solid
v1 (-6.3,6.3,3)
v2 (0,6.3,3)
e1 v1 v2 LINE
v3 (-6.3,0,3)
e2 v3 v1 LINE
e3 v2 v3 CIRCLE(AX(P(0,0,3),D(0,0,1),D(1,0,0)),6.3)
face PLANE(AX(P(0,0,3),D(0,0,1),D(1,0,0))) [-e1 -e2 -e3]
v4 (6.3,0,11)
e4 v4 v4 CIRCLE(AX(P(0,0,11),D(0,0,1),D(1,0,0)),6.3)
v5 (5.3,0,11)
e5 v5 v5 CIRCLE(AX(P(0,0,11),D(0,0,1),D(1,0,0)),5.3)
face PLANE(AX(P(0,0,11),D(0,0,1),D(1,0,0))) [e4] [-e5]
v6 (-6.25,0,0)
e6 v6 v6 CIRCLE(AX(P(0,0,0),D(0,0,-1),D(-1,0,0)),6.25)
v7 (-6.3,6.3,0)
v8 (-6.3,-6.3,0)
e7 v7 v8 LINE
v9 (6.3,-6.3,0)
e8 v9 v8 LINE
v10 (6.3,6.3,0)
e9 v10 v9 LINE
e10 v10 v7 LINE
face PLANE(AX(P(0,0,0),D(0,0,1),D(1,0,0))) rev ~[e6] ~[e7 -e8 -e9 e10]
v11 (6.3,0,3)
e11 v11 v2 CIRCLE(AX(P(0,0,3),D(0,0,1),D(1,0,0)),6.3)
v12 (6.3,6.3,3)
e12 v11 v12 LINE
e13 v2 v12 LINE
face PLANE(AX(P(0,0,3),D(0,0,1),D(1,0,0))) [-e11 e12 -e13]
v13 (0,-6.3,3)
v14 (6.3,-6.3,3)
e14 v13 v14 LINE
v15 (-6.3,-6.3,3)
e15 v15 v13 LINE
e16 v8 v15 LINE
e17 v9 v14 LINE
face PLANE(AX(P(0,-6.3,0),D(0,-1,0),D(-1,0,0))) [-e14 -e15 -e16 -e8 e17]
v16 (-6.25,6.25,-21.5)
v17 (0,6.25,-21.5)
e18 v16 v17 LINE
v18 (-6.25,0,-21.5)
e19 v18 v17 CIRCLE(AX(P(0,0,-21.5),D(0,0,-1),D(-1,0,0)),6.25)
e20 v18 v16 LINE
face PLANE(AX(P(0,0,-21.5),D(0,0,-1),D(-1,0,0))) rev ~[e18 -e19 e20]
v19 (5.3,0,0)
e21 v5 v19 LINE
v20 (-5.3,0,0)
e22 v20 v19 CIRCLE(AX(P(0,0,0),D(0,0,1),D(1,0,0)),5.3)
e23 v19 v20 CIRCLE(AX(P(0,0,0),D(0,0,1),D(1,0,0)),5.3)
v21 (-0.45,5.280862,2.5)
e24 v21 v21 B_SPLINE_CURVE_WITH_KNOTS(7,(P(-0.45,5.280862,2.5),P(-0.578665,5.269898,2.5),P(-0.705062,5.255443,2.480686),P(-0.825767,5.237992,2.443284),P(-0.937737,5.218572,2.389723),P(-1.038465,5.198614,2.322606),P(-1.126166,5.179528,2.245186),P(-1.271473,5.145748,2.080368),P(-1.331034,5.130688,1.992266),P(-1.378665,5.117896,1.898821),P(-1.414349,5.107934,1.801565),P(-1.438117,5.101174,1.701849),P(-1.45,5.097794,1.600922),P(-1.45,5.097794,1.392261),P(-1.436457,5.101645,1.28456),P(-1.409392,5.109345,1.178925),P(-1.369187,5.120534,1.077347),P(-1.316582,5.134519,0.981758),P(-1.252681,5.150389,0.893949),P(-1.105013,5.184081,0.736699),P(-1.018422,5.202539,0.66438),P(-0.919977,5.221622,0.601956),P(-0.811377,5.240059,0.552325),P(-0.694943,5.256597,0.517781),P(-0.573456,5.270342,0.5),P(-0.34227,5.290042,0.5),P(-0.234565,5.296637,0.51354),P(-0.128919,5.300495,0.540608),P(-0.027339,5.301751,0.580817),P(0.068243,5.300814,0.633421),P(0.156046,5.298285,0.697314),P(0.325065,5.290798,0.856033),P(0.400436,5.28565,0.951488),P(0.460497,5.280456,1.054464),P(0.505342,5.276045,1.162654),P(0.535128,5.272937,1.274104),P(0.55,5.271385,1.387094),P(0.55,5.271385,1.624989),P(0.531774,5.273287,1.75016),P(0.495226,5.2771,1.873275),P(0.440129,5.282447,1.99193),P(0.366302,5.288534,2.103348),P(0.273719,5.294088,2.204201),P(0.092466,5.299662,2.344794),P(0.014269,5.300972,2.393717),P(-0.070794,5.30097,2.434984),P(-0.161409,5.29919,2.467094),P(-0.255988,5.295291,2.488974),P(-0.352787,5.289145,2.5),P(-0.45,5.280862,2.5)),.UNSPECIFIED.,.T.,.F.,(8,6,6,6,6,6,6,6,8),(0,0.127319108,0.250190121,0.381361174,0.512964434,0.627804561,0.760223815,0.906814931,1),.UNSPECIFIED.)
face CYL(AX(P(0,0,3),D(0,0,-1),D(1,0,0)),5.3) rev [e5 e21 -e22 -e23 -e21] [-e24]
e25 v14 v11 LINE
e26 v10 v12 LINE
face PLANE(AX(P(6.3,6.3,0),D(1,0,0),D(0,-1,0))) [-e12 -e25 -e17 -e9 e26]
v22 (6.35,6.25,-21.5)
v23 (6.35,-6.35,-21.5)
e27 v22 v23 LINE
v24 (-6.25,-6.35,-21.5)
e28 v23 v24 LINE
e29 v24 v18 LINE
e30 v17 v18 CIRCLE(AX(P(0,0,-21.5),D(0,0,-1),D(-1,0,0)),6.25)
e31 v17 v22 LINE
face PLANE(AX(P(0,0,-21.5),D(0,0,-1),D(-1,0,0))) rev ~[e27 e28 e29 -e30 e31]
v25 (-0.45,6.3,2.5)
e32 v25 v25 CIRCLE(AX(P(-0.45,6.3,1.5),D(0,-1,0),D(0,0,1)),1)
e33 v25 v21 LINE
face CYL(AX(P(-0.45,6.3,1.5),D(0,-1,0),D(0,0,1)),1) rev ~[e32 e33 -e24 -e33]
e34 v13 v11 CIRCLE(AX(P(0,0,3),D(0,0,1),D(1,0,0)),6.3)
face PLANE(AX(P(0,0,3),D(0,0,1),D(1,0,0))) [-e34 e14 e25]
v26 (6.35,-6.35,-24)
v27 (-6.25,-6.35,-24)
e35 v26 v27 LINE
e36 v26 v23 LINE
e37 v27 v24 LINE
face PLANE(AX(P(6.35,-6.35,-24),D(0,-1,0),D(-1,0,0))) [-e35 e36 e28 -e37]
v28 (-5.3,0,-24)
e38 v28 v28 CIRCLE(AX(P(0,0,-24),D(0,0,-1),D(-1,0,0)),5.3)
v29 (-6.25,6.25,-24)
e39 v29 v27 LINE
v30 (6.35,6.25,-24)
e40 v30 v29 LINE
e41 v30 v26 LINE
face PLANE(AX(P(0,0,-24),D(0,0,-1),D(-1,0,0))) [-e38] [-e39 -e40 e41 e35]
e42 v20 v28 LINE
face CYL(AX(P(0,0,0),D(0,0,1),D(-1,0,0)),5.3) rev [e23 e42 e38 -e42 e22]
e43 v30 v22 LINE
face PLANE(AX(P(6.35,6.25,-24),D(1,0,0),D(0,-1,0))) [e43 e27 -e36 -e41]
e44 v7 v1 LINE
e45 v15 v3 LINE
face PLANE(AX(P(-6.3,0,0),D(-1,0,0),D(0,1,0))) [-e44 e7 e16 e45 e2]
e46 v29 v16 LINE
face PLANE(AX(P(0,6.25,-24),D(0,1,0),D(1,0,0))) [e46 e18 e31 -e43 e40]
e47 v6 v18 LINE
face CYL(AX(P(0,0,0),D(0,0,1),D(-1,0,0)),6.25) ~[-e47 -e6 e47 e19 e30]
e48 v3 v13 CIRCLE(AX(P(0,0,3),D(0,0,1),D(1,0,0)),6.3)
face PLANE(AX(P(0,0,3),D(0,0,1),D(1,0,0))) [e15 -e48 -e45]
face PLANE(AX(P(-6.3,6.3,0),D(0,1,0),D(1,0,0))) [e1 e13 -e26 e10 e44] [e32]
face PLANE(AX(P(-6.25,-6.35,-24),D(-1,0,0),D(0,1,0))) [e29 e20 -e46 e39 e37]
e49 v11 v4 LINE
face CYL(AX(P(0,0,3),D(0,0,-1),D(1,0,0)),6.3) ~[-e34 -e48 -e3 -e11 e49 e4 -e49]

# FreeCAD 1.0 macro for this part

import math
import FreeCAD as App
import Part
import Sketcher

V = App.Vector


def add_polygon(sketch, points):
    """Adds a closed chain of lines whose ends are joined by coincident constraints."""
    first, n = sketch.GeometryCount, len(points)
    for a, b in zip(points, points[1:] + points[:1]):
        sketch.addGeometry(Part.LineSegment(App.Vector(*a, 0), App.Vector(*b, 0)), False)
    for i in range(n):
        sketch.addConstraint(Sketcher.Constraint("Coincident", first + i, 2, first + (i + 1) % n, 1))

doc = App.newDocument("Part")
params = doc.addObject("Spreadsheet::Sheet", "Params")
for row, (alias, value) in enumerate([
    ("sketch1_diameter", "10.6 mm"),
    ("sketch1_width", "12.6 mm"),
    ("pad1_length", "3 mm"),
    ("sketch2_diameter", "12.6 mm"),
    ("sketch2_diameter2", "10.6 mm"),
    ("pad2_length", "8 mm"),
    ("sketch3_diameter", "12.5 mm"),
    ("sketch3_diameter2", "10.6 mm"),
    ("pad3_length", "24 mm"),
    ("sketch4_diameter", "2 mm"),
    ("hole_diameter", "2 mm"),
    ("hole_depth", "8 mm"),
    ("sketch5_radius", "6.25 mm"),
    ("sketch5_width", "12.6 mm"),
    ("pad4_length", "2.5 mm"),
], start=1):
    params.set(f"A{row}", alias)
    params.set(f"B{row}", "=" + value)
    params.setAlias(f"B{row}", alias)

body = doc.addObject("PartDesign::Body", "Body")

# Sketch on XY plane
sketch1 = body.newObject("Sketcher::SketchObject", "Sketch")
sketch1.AttachmentSupport = (doc.getObject("XY_Plane"), [""])
sketch1.MapMode = "FlatFace"
add_polygon(sketch1, [(-6.3, 6.3), (-6.3, -6.3), (6.3, -6.3), (6.3, 6.3)])  # lines 0-3
sketch1.addGeometry(Part.Circle(V(0, 0, 0), V(0, 0, 1), 5.3), False)  # 4
sketch1.addConstraint([
    Sketcher.Constraint("Vertical", 0),
    Sketcher.Constraint("Horizontal", 1),
    Sketcher.Constraint("Vertical", 2),
    Sketcher.Constraint("Horizontal", 3),
    Sketcher.Constraint("Coincident", 4, 3, -1, 1),
    Sketcher.Constraint("Symmetric", 0, 2, 2, 2, -1, 1),
    Sketcher.Constraint("Equal", 3, 0),
    Sketcher.Constraint("Diameter", 4, 10.6),
    Sketcher.Constraint("DistanceX", 1, 1, 1, 2, 12.6),
])
sketch1.setExpression("Constraints[11]", "Params.sketch1_diameter")
sketch1.setExpression("Constraints[12]", "Params.sketch1_width")
pad1 = body.newObject("PartDesign::Pad", "Pad")
pad1.Profile = sketch1
pad1.setExpression("Length", "Params.pad1_length")

# Sketch on XY plane
sketch2 = body.newObject("Sketcher::SketchObject", "Sketch001")
sketch2.AttachmentSupport = (doc.getObject("XY_Plane"), [""])
sketch2.MapMode = "FlatFace"
sketch2.AttachmentOffset = App.Placement(V(0, 0, 3), App.Rotation())
sketch2.addGeometry([
    Part.Circle(V(0, 0, 0), V(0, 0, 1), 6.3),
    Part.Circle(V(0, 0, 0), V(0, 0, 1), 5.3),
], False)
sketch2.addConstraint([
    Sketcher.Constraint("Coincident", 0, 3, -1, 1),
    Sketcher.Constraint("Coincident", 1, 3, -1, 1),
    Sketcher.Constraint("Diameter", 0, 12.6),
    Sketcher.Constraint("Diameter", 1, 10.6),
])
sketch2.setExpression("Constraints[2]", "Params.sketch2_diameter")
sketch2.setExpression("Constraints[3]", "Params.sketch2_diameter2")
pad2 = body.newObject("PartDesign::Pad", "Pad001")
pad2.Profile = sketch2
pad2.setExpression("Length", "Params.pad2_length")

# Sketch on XY plane
sketch3 = body.newObject("Sketcher::SketchObject", "Sketch002")
sketch3.AttachmentSupport = (doc.getObject("XY_Plane"), [""])
sketch3.MapMode = "FlatFace"
sketch3.addGeometry([
    Part.Circle(V(0, 0, 0), V(0, 0, 1), 6.25),
    Part.Circle(V(0, 0, 0), V(0, 0, 1), 5.3),
], False)
sketch3.addConstraint([
    Sketcher.Constraint("Coincident", 0, 3, -1, 1),
    Sketcher.Constraint("Coincident", 1, 3, -1, 1),
    Sketcher.Constraint("Diameter", 0, 12.5),
    Sketcher.Constraint("Diameter", 1, 10.6),
])
sketch3.setExpression("Constraints[2]", "Params.sketch3_diameter")
sketch3.setExpression("Constraints[3]", "Params.sketch3_diameter2")
pad3 = body.newObject("PartDesign::Pad", "Pad002")
pad3.Profile = sketch3
pad3.setExpression("Length", "Params.pad3_length")
pad3.Reversed = True

# Sketch on XZ plane
sketch4 = body.newObject("Sketcher::SketchObject", "Sketch003")
sketch4.AttachmentSupport = (doc.getObject("XZ_Plane"), [""])
sketch4.MapMode = "FlatFace"
sketch4.AttachmentOffset = App.Placement(V(0, 0, -6.3), App.Rotation())
sketch4.addGeometry(Part.Circle(V(-0.45, 1.5, 0), V(0, 0, 1), 1), False)
sketch4.addConstraint([
    Sketcher.Constraint("Diameter", 0, 2.0),
    Sketcher.Constraint("DistanceY", -1, 1, 0, 3, 1.5),
    Sketcher.Constraint("DistanceX", 0, 3, -1, 1, 0.45),
])
sketch4.setExpression("Constraints[0]", "Params.sketch4_diameter")
doc.recompute()
hole = body.newObject("PartDesign::Hole", "Hole")
hole.Profile = sketch4
hole.ThreadType = "None"
hole.setExpression("Diameter", "Params.hole_diameter")
hole.DepthType = "Dimension"
hole.setExpression("Depth", "Params.hole_depth")
hole.DrillPoint = "Angled"
hole.DrillPointAngle = 118
hole.Reversed = True

# Sketch on XY plane
sketch5 = body.newObject("Sketcher::SketchObject", "Sketch004")
sketch5.AttachmentSupport = (doc.getObject("XY_Plane"), [""])
sketch5.MapMode = "FlatFace"
sketch5.AttachmentOffset = App.Placement(V(0, 0, -24), App.Rotation())
sketch5.addGeometry([
    Part.LineSegment(V(-6.25, -6.35, 0), V(-6.25, 0, 0)),  # 0
    Part.ArcOfCircle(Part.Circle(V(0, 0, 0), V(0, 0, 1), 6.25), math.radians(180), math.radians(450)),  # 1
    Part.LineSegment(V(0, 6.25, 0), V(6.35, 6.25, 0)),  # 2
    Part.LineSegment(V(6.35, 6.25, 0), V(6.35, -6.35, 0)),  # 3
    Part.LineSegment(V(6.35, -6.35, 0), V(-6.25, -6.35, 0)),  # 4
    Part.ArcOfCircle(Part.Circle(V(0, 0, 0), V(0, 0, 1), 6.25), math.radians(90), math.radians(180)),  # 5
    Part.LineSegment(V(-6.25, 0, 0), V(-6.25, 6.25, 0)),  # 6
    Part.LineSegment(V(-6.25, 6.25, 0), V(0, 6.25, 0)),  # 7
], False)
sketch5.addConstraint([
    Sketcher.Constraint("Tangent", 0, 2, 1, 1),
    Sketcher.Constraint("Tangent", 1, 2, 2, 1),
    Sketcher.Constraint("Coincident", 2, 2, 3, 1),
    Sketcher.Constraint("Coincident", 3, 2, 4, 1),
    Sketcher.Constraint("Coincident", 4, 2, 0, 1),
    Sketcher.Constraint("Tangent", 5, 2, 6, 1),
    Sketcher.Constraint("Coincident", 6, 2, 7, 1),
    Sketcher.Constraint("Tangent", 7, 2, 5, 1),
    Sketcher.Constraint("Vertical", 0),
    Sketcher.Constraint("Horizontal", 2),
    Sketcher.Constraint("Vertical", 3),
    Sketcher.Constraint("Horizontal", 4),
    Sketcher.Constraint("Vertical", 6),
    Sketcher.Constraint("Horizontal", 7),
    Sketcher.Constraint("Coincident", 1, 3, -1, 1),
    Sketcher.Constraint("Coincident", 5, 3, -1, 1),
    Sketcher.Constraint("Equal", 1, 5),
    Sketcher.Constraint("Equal", 2, 0),
    Sketcher.Constraint("Radius", 1, 6.25),
    Sketcher.Constraint("DistanceX", 4, 2, 4, 1, 12.6),
])
sketch5.setExpression("Constraints[18]", "Params.sketch5_radius")
sketch5.setExpression("Constraints[19]", "Params.sketch5_width")
pad4 = body.newObject("PartDesign::Pad", "Pad003")
pad4.Profile = sketch5
pad4.setExpression("Length", "Params.pad4_length")

doc.recompute()
